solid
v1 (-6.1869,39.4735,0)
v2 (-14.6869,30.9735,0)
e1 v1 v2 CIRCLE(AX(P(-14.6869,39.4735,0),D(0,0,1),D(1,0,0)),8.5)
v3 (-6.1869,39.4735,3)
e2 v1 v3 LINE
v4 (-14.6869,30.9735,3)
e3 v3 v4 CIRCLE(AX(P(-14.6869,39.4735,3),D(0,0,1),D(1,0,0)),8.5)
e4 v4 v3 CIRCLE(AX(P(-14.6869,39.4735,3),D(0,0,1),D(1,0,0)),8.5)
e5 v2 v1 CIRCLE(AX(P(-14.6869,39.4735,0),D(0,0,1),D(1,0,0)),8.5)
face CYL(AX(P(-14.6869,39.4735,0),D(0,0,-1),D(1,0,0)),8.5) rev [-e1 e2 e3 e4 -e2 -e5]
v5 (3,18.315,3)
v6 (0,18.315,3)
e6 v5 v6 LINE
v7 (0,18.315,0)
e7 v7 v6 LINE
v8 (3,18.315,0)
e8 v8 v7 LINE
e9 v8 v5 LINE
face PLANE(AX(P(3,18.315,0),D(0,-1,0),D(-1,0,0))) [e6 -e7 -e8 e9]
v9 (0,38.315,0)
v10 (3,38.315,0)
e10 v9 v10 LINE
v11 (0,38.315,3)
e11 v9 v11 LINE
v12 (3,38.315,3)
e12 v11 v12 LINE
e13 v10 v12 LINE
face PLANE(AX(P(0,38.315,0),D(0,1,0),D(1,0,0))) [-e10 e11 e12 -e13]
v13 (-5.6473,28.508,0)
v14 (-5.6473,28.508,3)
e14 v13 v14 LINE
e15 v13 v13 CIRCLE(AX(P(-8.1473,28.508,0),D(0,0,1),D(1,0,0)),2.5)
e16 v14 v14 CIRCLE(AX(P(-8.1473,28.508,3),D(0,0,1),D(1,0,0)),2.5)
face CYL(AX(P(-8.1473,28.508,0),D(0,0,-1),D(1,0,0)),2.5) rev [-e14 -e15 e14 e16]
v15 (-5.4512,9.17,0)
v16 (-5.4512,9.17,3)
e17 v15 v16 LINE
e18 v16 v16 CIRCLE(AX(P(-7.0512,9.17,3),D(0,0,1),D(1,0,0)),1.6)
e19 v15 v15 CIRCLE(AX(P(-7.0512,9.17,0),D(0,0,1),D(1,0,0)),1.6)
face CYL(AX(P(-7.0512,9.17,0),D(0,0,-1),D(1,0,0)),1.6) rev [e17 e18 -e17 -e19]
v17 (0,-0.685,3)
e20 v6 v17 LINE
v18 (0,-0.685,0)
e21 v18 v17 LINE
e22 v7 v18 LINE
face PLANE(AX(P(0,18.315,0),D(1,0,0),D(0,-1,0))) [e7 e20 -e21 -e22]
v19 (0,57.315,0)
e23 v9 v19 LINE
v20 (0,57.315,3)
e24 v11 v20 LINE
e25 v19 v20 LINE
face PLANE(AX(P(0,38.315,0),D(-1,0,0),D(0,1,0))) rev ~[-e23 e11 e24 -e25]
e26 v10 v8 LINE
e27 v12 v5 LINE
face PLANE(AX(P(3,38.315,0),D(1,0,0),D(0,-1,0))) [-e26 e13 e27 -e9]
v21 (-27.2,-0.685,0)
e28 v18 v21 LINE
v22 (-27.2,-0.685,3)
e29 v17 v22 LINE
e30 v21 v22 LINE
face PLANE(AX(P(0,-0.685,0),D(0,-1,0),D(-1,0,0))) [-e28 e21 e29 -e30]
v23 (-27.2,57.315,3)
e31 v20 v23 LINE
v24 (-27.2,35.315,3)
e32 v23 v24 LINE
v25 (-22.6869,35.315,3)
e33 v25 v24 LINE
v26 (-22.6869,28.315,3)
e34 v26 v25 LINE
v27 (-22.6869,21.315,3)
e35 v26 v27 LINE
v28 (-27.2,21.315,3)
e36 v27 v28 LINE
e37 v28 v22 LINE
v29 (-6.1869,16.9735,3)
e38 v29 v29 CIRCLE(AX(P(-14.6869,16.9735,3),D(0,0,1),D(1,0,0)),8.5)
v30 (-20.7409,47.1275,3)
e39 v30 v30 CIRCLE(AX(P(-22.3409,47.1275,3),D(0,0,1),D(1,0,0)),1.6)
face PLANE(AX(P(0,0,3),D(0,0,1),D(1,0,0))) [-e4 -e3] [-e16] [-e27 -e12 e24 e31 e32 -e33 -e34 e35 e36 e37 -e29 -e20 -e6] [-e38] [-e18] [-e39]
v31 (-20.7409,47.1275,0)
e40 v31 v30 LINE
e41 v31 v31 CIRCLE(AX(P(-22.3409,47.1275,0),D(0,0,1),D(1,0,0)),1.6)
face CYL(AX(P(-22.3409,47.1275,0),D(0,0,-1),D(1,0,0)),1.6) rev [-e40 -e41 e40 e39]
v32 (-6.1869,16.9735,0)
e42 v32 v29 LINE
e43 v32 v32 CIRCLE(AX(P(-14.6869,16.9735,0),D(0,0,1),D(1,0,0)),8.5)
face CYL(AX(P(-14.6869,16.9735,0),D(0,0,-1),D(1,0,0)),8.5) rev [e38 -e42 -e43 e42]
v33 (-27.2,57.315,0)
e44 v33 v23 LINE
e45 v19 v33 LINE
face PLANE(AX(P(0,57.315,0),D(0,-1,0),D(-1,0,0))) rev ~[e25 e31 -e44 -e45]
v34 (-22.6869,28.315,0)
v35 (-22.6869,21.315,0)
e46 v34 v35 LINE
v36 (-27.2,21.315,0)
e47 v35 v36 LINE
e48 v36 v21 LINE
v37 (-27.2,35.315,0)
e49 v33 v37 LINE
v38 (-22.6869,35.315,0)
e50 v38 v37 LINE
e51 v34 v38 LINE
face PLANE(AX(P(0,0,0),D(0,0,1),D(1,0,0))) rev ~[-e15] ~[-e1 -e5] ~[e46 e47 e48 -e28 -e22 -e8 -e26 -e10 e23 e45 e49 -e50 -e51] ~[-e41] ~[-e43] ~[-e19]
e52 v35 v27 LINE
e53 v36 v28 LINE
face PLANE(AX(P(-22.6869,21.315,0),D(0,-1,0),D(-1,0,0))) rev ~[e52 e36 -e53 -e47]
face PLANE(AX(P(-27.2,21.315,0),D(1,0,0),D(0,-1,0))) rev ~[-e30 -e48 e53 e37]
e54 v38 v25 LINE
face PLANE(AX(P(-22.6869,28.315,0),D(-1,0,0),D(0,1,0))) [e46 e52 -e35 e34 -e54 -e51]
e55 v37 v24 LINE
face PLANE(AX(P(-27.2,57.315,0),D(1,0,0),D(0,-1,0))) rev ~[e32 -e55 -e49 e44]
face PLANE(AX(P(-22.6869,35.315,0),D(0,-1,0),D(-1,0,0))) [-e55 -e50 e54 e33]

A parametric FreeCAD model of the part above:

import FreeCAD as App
import Part
import Sketcher

doc = App.newDocument("Part")
params = doc.addObject("Spreadsheet::Sheet", "Params")
for row, (alias, value) in enumerate([
    ("sketch1_width", "3 mm"),
    ("sketch1_height", "7 mm"),
    ("sketch1_height2", "20 mm"),
    ("sketch1_diameter", "17 mm"),
    ("sketch1_diameter2", "5 mm"),
    ("pad1_length", "3 mm"),
], start=1):
    params.set(f"A{row}", alias)
    params.set(f"B{row}", "=" + value)
    params.setAlias(f"B{row}", alias)

body = doc.addObject("PartDesign::Body", "Body")

sketch1 = body.newObject("Sketcher::SketchObject", "Sketch")
sketch1.AttachmentSupport = (doc.getObject("XY_Plane"), [""])
sketch1.MapMode = "FlatFace"
sketch1.addGeometry(Part.LineSegment(App.Vector(-22.7, 35.3, 0), App.Vector(-22.7, 28.3, 0)), False)
sketch1.addGeometry(Part.LineSegment(App.Vector(-22.7, 28.3, 0), App.Vector(-22.7, 21.3, 0)), False)
sketch1.addGeometry(Part.LineSegment(App.Vector(-22.7, 21.3, 0), App.Vector(-27.2, 21.3, 0)), False)
sketch1.addGeometry(Part.LineSegment(App.Vector(-27.2, 21.3, 0), App.Vector(-27.2, -0.7, 0)), False)
sketch1.addGeometry(Part.LineSegment(App.Vector(-27.2, -0.7, 0), App.Vector(0, -0.7, 0)), False)
sketch1.addGeometry(Part.LineSegment(App.Vector(0, -0.7, 0), App.Vector(0, 18.3, 0)), False)
sketch1.addGeometry(Part.LineSegment(App.Vector(0, 18.3, 0), App.Vector(3, 18.3, 0)), False)
sketch1.addGeometry(Part.LineSegment(App.Vector(3, 18.3, 0), App.Vector(3, 38.3, 0)), False)
sketch1.addGeometry(Part.LineSegment(App.Vector(3, 38.3, 0), App.Vector(0, 38.3, 0)), False)
sketch1.addGeometry(Part.LineSegment(App.Vector(0, 38.3, 0), App.Vector(0, 57.3, 0)), False)
sketch1.addGeometry(Part.LineSegment(App.Vector(0, 57.3, 0), App.Vector(-27.2, 57.3, 0)), False)
sketch1.addGeometry(Part.LineSegment(App.Vector(-27.2, 57.3, 0), App.Vector(-27.2, 35.3, 0)), False)
sketch1.addGeometry(Part.LineSegment(App.Vector(-27.2, 35.3, 0), App.Vector(-22.7, 35.3, 0)), False)
sketch1.addGeometry(Part.Circle(App.Vector(-14.7, 17, 0), App.Vector(0, 0, 1), 8.5), False)
sketch1.addGeometry(Part.Circle(App.Vector(-7.1, 9.2, 0), App.Vector(0, 0, 1), 1.6), False)
sketch1.addGeometry(Part.Circle(App.Vector(-14.7, 39.5, 0), App.Vector(0, 0, 1), 8.5), False)
sketch1.addGeometry(Part.Circle(App.Vector(-22.3, 47.1, 0), App.Vector(0, 0, 1), 1.6), False)
sketch1.addGeometry(Part.Circle(App.Vector(-8.1, 28.5, 0), App.Vector(0, 0, 1), 2.5), False)
sketch1.addConstraint(Sketcher.Constraint("Coincident", 0, 2, 1, 1))
sketch1.addConstraint(Sketcher.Constraint("Coincident", 1, 2, 2, 1))
sketch1.addConstraint(Sketcher.Constraint("Coincident", 2, 2, 3, 1))
sketch1.addConstraint(Sketcher.Constraint("Coincident", 3, 2, 4, 1))
sketch1.addConstraint(Sketcher.Constraint("Coincident", 4, 2, 5, 1))
sketch1.addConstraint(Sketcher.Constraint("Coincident", 5, 2, 6, 1))
sketch1.addConstraint(Sketcher.Constraint("Coincident", 6, 2, 7, 1))
sketch1.addConstraint(Sketcher.Constraint("Coincident", 7, 2, 8, 1))
sketch1.addConstraint(Sketcher.Constraint("Coincident", 8, 2, 9, 1))
sketch1.addConstraint(Sketcher.Constraint("Coincident", 9, 2, 10, 1))
sketch1.addConstraint(Sketcher.Constraint("Coincident", 10, 2, 11, 1))
sketch1.addConstraint(Sketcher.Constraint("Coincident", 11, 2, 12, 1))
sketch1.addConstraint(Sketcher.Constraint("Coincident", 12, 2, 0, 1))
sketch1.addConstraint(Sketcher.Constraint("Vertical", 0))
sketch1.addConstraint(Sketcher.Constraint("Vertical", 1))
sketch1.addConstraint(Sketcher.Constraint("Horizontal", 2))
sketch1.addConstraint(Sketcher.Constraint("Vertical", 3))
sketch1.addConstraint(Sketcher.Constraint("Horizontal", 4))
sketch1.addConstraint(Sketcher.Constraint("Vertical", 5))
sketch1.addConstraint(Sketcher.Constraint("Horizontal", 6))
sketch1.addConstraint(Sketcher.Constraint("Vertical", 7))
sketch1.addConstraint(Sketcher.Constraint("Horizontal", 8))
sketch1.addConstraint(Sketcher.Constraint("Vertical", 9))
sketch1.addConstraint(Sketcher.Constraint("Horizontal", 10))
sketch1.addConstraint(Sketcher.Constraint("Vertical", 11))
sketch1.addConstraint(Sketcher.Constraint("Horizontal", 12))
sketch1.addConstraint(Sketcher.Constraint("Equal", 13, 15))
sketch1.addConstraint(Sketcher.Constraint("Equal", 14, 16))
sketch1.addConstraint(Sketcher.Constraint("PointOnObject", 4, 2, -2))
sketch1.addConstraint(Sketcher.Constraint("PointOnObject", 8, 2, -2))
sketch1.addConstraint(Sketcher.Constraint("Vertical", 13, 3, 15, 3))
sketch1.addConstraint(Sketcher.Constraint("Vertical", 3, 2, 10, 2))
sketch1.addConstraint(Sketcher.Constraint("Equal", 0, 1))
sketch1.addConstraint(Sketcher.Constraint("Equal", 5, 9))
sketch1.addConstraint(Sketcher.Constraint("Equal", 3, 11))
sketch1.addConstraint(Sketcher.Constraint("DistanceX", 6, 1, 6, 2, 3.0))
sketch1.addConstraint(Sketcher.Constraint("DistanceY", 0, 2, 0, 1, 7.0))
sketch1.addConstraint(Sketcher.Constraint("DistanceY", 7, 1, 7, 2, 20.0))
sketch1.addConstraint(Sketcher.Constraint("Diameter", 13, 17.0))
sketch1.addConstraint(Sketcher.Constraint("Diameter", 17, 5.0))
sketch1.addConstraint(Sketcher.Constraint("DistanceX", 0, 2, 15, 3, 8.0))
sketch1.addConstraint(Sketcher.Constraint("DistanceY", 3, 2, 0, 2, 29.0))
sketch1.addConstraint(Sketcher.Constraint("Diameter", 14, 3.2))
sketch1.addConstraint(Sketcher.Constraint("DistanceX", 4, 1, 4, 2, 27.2))
sketch1.addConstraint(Sketcher.Constraint("DistanceY", 13, 3, 15, 3, 22.5))
sketch1.addConstraint(Sketcher.Constraint("DistanceX", 2, 2, 2, 1, 4.513))
sketch1.addConstraint(Sketcher.Constraint("DistanceY", -1, 1, 14, 3, 9.17))
sketch1.addConstraint(Sketcher.Constraint("DistanceX", 16, 3, -1, 1, 22.341))
sketch1.addConstraint(Sketcher.Constraint("DistanceY", -1, 1, 17, 3, 28.508))
sketch1.addConstraint(Sketcher.Constraint("DistanceY", -1, 1, 0, 2, 28.315))
sketch1.addConstraint(Sketcher.Constraint("DistanceY", 15, 3, 16, 3, 7.654))
sketch1.addConstraint(Sketcher.Constraint("DistanceX", 17, 3, 14, 3, 1.096))
sketch1.addConstraint(Sketcher.Constraint("DistanceY", -1, 1, 13, 3, 16.9735))
sketch1.addConstraint(Sketcher.Constraint("DistanceX", 14, 3, -1, 1, 7.0512))
sketch1.setExpression("Constraints[35]", "Params.sketch1_width")
sketch1.setExpression("Constraints[36]", "Params.sketch1_height")
sketch1.setExpression("Constraints[37]", "Params.sketch1_height2")
sketch1.setExpression("Constraints[38]", "Params.sketch1_diameter")
sketch1.setExpression("Constraints[39]", "Params.sketch1_diameter2")
pad1 = body.newObject("PartDesign::Pad", "Pad")
pad1.Profile = sketch1
pad1.setExpression("Length", "Params.pad1_length")

doc.recompute()
